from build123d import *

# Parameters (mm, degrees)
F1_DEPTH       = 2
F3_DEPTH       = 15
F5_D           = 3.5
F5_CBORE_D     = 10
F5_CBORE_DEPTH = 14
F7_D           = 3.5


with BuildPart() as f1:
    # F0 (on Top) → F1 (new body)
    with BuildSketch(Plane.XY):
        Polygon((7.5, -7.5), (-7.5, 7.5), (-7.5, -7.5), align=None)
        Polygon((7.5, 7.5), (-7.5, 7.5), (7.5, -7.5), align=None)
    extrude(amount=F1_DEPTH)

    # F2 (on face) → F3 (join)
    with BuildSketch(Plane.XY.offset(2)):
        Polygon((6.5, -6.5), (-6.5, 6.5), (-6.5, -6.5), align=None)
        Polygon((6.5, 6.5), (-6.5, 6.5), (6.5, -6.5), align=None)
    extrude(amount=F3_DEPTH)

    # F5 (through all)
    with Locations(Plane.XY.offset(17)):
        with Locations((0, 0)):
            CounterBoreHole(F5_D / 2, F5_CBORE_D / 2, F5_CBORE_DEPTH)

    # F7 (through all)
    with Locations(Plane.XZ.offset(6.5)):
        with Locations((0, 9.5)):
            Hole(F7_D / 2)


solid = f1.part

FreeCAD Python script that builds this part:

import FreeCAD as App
import Part
import Sketcher


def add_polygon(sketch, points):
    """Adds a closed chain of lines whose ends are joined by coincident constraints."""
    first, n = sketch.GeometryCount, len(points)
    for a, b in zip(points, points[1:] + points[:1]):
        sketch.addGeometry(Part.LineSegment(App.Vector(*a, 0), App.Vector(*b, 0)), False)
    for i in range(n):
        sketch.addConstraint(Sketcher.Constraint("Coincident", first + i, 2, first + (i + 1) % n, 1))

doc = App.newDocument("Part")
body = doc.addObject("PartDesign::Body", "Body")

# Sketch on XY plane
sketch1 = body.newObject("Sketcher::SketchObject", "Sketch")
sketch1.AttachmentSupport = (doc.getObject("XY_Plane"), [""])
sketch1.MapMode = "FlatFace"
add_polygon(sketch1, [(-7.5, 7.5), (-7.5, -7.5), (7.5, -7.5), (7.5, 7.5)])  # lines 0-3
sketch1.addConstraint(Sketcher.Constraint("Vertical", 0))
sketch1.addConstraint(Sketcher.Constraint("Horizontal", 1))
sketch1.addConstraint(Sketcher.Constraint("Vertical", 2))
sketch1.addConstraint(Sketcher.Constraint("Horizontal", 3))
sketch1.addConstraint(Sketcher.Constraint("Symmetric", 0, 2, 2, 2, -1, 1))
sketch1.addConstraint(Sketcher.Constraint("Equal", 3, 0))
sketch1.addConstraint(Sketcher.Constraint("DistanceX", 1, 1, 1, 2, 15.0))
pad1 = body.newObject("PartDesign::Pad", "Pad")
pad1.Profile = sketch1
pad1.Length = 2

# Sketch on XY plane
sketch2 = body.newObject("Sketcher::SketchObject", "Sketch001")
sketch2.AttachmentSupport = (doc.getObject("XY_Plane"), [""])
sketch2.MapMode = "FlatFace"
sketch2.AttachmentOffset = App.Placement(App.Vector(0, 0, 2), App.Rotation())
add_polygon(sketch2, [(-6.5, 6.5), (-6.5, -6.5), (6.5, -6.5), (6.5, 6.5)])  # lines 0-3
sketch2.addConstraint(Sketcher.Constraint("Vertical", 0))
sketch2.addConstraint(Sketcher.Constraint("Horizontal", 1))
sketch2.addConstraint(Sketcher.Constraint("Vertical", 2))
sketch2.addConstraint(Sketcher.Constraint("Horizontal", 3))
sketch2.addConstraint(Sketcher.Constraint("Symmetric", 0, 2, 2, 2, -1, 1))
sketch2.addConstraint(Sketcher.Constraint("Equal", 3, 0))
sketch2.addConstraint(Sketcher.Constraint("DistanceX", 1, 1, 1, 2, 13.0))
pad2 = body.newObject("PartDesign::Pad", "Pad001")
pad2.Profile = sketch2
pad2.Length = 15

# Sketch on XY plane
sketch3 = body.newObject("Sketcher::SketchObject", "Sketch002")
sketch3.AttachmentSupport = (doc.getObject("XY_Plane"), [""])
sketch3.MapMode = "FlatFace"
sketch3.AttachmentOffset = App.Placement(App.Vector(0, 0, 17), App.Rotation())
sketch3.addGeometry(Part.Circle(App.Vector(0, 0, 0), App.Vector(0, 0, 1), 1.75), False)
sketch3.addConstraint(Sketcher.Constraint("Coincident", 0, 3, -1, 1))
sketch3.addConstraint(Sketcher.Constraint("Diameter", 0, 3.5))
doc.recompute()
hole = body.newObject("PartDesign::Hole", "Hole")
hole.Profile = sketch3
hole.ThreadType = "None"
hole.Diameter = 3.5
hole.DepthType = "ThroughAll"
hole.HoleCutType = "Counterbore"
hole.HoleCutDiameter = 10
hole.HoleCutDepth = 14

# Sketch on XZ plane
sketch4 = body.newObject("Sketcher::SketchObject", "Sketch003")
sketch4.AttachmentSupport = (doc.getObject("XZ_Plane"), [""])
sketch4.MapMode = "FlatFace"
sketch4.AttachmentOffset = App.Placement(App.Vector(0, 0, 6.5), App.Rotation())
sketch4.addGeometry(Part.Circle(App.Vector(0, 9.5, 0), App.Vector(0, 0, 1), 1.75), False)
sketch4.addConstraint(Sketcher.Constraint("PointOnObject", 0, 3, -2))
sketch4.addConstraint(Sketcher.Constraint("Diameter", 0, 3.5))
sketch4.addConstraint(Sketcher.Constraint("DistanceY", -1, 1, 0, 3, 9.5))
doc.recompute()
hole2 = body.newObject("PartDesign::Hole", "Hole001")
hole2.Profile = sketch4
hole2.ThreadType = "None"
hole2.Diameter = 3.5
hole2.DepthType = "ThroughAll"

doc.recompute()
